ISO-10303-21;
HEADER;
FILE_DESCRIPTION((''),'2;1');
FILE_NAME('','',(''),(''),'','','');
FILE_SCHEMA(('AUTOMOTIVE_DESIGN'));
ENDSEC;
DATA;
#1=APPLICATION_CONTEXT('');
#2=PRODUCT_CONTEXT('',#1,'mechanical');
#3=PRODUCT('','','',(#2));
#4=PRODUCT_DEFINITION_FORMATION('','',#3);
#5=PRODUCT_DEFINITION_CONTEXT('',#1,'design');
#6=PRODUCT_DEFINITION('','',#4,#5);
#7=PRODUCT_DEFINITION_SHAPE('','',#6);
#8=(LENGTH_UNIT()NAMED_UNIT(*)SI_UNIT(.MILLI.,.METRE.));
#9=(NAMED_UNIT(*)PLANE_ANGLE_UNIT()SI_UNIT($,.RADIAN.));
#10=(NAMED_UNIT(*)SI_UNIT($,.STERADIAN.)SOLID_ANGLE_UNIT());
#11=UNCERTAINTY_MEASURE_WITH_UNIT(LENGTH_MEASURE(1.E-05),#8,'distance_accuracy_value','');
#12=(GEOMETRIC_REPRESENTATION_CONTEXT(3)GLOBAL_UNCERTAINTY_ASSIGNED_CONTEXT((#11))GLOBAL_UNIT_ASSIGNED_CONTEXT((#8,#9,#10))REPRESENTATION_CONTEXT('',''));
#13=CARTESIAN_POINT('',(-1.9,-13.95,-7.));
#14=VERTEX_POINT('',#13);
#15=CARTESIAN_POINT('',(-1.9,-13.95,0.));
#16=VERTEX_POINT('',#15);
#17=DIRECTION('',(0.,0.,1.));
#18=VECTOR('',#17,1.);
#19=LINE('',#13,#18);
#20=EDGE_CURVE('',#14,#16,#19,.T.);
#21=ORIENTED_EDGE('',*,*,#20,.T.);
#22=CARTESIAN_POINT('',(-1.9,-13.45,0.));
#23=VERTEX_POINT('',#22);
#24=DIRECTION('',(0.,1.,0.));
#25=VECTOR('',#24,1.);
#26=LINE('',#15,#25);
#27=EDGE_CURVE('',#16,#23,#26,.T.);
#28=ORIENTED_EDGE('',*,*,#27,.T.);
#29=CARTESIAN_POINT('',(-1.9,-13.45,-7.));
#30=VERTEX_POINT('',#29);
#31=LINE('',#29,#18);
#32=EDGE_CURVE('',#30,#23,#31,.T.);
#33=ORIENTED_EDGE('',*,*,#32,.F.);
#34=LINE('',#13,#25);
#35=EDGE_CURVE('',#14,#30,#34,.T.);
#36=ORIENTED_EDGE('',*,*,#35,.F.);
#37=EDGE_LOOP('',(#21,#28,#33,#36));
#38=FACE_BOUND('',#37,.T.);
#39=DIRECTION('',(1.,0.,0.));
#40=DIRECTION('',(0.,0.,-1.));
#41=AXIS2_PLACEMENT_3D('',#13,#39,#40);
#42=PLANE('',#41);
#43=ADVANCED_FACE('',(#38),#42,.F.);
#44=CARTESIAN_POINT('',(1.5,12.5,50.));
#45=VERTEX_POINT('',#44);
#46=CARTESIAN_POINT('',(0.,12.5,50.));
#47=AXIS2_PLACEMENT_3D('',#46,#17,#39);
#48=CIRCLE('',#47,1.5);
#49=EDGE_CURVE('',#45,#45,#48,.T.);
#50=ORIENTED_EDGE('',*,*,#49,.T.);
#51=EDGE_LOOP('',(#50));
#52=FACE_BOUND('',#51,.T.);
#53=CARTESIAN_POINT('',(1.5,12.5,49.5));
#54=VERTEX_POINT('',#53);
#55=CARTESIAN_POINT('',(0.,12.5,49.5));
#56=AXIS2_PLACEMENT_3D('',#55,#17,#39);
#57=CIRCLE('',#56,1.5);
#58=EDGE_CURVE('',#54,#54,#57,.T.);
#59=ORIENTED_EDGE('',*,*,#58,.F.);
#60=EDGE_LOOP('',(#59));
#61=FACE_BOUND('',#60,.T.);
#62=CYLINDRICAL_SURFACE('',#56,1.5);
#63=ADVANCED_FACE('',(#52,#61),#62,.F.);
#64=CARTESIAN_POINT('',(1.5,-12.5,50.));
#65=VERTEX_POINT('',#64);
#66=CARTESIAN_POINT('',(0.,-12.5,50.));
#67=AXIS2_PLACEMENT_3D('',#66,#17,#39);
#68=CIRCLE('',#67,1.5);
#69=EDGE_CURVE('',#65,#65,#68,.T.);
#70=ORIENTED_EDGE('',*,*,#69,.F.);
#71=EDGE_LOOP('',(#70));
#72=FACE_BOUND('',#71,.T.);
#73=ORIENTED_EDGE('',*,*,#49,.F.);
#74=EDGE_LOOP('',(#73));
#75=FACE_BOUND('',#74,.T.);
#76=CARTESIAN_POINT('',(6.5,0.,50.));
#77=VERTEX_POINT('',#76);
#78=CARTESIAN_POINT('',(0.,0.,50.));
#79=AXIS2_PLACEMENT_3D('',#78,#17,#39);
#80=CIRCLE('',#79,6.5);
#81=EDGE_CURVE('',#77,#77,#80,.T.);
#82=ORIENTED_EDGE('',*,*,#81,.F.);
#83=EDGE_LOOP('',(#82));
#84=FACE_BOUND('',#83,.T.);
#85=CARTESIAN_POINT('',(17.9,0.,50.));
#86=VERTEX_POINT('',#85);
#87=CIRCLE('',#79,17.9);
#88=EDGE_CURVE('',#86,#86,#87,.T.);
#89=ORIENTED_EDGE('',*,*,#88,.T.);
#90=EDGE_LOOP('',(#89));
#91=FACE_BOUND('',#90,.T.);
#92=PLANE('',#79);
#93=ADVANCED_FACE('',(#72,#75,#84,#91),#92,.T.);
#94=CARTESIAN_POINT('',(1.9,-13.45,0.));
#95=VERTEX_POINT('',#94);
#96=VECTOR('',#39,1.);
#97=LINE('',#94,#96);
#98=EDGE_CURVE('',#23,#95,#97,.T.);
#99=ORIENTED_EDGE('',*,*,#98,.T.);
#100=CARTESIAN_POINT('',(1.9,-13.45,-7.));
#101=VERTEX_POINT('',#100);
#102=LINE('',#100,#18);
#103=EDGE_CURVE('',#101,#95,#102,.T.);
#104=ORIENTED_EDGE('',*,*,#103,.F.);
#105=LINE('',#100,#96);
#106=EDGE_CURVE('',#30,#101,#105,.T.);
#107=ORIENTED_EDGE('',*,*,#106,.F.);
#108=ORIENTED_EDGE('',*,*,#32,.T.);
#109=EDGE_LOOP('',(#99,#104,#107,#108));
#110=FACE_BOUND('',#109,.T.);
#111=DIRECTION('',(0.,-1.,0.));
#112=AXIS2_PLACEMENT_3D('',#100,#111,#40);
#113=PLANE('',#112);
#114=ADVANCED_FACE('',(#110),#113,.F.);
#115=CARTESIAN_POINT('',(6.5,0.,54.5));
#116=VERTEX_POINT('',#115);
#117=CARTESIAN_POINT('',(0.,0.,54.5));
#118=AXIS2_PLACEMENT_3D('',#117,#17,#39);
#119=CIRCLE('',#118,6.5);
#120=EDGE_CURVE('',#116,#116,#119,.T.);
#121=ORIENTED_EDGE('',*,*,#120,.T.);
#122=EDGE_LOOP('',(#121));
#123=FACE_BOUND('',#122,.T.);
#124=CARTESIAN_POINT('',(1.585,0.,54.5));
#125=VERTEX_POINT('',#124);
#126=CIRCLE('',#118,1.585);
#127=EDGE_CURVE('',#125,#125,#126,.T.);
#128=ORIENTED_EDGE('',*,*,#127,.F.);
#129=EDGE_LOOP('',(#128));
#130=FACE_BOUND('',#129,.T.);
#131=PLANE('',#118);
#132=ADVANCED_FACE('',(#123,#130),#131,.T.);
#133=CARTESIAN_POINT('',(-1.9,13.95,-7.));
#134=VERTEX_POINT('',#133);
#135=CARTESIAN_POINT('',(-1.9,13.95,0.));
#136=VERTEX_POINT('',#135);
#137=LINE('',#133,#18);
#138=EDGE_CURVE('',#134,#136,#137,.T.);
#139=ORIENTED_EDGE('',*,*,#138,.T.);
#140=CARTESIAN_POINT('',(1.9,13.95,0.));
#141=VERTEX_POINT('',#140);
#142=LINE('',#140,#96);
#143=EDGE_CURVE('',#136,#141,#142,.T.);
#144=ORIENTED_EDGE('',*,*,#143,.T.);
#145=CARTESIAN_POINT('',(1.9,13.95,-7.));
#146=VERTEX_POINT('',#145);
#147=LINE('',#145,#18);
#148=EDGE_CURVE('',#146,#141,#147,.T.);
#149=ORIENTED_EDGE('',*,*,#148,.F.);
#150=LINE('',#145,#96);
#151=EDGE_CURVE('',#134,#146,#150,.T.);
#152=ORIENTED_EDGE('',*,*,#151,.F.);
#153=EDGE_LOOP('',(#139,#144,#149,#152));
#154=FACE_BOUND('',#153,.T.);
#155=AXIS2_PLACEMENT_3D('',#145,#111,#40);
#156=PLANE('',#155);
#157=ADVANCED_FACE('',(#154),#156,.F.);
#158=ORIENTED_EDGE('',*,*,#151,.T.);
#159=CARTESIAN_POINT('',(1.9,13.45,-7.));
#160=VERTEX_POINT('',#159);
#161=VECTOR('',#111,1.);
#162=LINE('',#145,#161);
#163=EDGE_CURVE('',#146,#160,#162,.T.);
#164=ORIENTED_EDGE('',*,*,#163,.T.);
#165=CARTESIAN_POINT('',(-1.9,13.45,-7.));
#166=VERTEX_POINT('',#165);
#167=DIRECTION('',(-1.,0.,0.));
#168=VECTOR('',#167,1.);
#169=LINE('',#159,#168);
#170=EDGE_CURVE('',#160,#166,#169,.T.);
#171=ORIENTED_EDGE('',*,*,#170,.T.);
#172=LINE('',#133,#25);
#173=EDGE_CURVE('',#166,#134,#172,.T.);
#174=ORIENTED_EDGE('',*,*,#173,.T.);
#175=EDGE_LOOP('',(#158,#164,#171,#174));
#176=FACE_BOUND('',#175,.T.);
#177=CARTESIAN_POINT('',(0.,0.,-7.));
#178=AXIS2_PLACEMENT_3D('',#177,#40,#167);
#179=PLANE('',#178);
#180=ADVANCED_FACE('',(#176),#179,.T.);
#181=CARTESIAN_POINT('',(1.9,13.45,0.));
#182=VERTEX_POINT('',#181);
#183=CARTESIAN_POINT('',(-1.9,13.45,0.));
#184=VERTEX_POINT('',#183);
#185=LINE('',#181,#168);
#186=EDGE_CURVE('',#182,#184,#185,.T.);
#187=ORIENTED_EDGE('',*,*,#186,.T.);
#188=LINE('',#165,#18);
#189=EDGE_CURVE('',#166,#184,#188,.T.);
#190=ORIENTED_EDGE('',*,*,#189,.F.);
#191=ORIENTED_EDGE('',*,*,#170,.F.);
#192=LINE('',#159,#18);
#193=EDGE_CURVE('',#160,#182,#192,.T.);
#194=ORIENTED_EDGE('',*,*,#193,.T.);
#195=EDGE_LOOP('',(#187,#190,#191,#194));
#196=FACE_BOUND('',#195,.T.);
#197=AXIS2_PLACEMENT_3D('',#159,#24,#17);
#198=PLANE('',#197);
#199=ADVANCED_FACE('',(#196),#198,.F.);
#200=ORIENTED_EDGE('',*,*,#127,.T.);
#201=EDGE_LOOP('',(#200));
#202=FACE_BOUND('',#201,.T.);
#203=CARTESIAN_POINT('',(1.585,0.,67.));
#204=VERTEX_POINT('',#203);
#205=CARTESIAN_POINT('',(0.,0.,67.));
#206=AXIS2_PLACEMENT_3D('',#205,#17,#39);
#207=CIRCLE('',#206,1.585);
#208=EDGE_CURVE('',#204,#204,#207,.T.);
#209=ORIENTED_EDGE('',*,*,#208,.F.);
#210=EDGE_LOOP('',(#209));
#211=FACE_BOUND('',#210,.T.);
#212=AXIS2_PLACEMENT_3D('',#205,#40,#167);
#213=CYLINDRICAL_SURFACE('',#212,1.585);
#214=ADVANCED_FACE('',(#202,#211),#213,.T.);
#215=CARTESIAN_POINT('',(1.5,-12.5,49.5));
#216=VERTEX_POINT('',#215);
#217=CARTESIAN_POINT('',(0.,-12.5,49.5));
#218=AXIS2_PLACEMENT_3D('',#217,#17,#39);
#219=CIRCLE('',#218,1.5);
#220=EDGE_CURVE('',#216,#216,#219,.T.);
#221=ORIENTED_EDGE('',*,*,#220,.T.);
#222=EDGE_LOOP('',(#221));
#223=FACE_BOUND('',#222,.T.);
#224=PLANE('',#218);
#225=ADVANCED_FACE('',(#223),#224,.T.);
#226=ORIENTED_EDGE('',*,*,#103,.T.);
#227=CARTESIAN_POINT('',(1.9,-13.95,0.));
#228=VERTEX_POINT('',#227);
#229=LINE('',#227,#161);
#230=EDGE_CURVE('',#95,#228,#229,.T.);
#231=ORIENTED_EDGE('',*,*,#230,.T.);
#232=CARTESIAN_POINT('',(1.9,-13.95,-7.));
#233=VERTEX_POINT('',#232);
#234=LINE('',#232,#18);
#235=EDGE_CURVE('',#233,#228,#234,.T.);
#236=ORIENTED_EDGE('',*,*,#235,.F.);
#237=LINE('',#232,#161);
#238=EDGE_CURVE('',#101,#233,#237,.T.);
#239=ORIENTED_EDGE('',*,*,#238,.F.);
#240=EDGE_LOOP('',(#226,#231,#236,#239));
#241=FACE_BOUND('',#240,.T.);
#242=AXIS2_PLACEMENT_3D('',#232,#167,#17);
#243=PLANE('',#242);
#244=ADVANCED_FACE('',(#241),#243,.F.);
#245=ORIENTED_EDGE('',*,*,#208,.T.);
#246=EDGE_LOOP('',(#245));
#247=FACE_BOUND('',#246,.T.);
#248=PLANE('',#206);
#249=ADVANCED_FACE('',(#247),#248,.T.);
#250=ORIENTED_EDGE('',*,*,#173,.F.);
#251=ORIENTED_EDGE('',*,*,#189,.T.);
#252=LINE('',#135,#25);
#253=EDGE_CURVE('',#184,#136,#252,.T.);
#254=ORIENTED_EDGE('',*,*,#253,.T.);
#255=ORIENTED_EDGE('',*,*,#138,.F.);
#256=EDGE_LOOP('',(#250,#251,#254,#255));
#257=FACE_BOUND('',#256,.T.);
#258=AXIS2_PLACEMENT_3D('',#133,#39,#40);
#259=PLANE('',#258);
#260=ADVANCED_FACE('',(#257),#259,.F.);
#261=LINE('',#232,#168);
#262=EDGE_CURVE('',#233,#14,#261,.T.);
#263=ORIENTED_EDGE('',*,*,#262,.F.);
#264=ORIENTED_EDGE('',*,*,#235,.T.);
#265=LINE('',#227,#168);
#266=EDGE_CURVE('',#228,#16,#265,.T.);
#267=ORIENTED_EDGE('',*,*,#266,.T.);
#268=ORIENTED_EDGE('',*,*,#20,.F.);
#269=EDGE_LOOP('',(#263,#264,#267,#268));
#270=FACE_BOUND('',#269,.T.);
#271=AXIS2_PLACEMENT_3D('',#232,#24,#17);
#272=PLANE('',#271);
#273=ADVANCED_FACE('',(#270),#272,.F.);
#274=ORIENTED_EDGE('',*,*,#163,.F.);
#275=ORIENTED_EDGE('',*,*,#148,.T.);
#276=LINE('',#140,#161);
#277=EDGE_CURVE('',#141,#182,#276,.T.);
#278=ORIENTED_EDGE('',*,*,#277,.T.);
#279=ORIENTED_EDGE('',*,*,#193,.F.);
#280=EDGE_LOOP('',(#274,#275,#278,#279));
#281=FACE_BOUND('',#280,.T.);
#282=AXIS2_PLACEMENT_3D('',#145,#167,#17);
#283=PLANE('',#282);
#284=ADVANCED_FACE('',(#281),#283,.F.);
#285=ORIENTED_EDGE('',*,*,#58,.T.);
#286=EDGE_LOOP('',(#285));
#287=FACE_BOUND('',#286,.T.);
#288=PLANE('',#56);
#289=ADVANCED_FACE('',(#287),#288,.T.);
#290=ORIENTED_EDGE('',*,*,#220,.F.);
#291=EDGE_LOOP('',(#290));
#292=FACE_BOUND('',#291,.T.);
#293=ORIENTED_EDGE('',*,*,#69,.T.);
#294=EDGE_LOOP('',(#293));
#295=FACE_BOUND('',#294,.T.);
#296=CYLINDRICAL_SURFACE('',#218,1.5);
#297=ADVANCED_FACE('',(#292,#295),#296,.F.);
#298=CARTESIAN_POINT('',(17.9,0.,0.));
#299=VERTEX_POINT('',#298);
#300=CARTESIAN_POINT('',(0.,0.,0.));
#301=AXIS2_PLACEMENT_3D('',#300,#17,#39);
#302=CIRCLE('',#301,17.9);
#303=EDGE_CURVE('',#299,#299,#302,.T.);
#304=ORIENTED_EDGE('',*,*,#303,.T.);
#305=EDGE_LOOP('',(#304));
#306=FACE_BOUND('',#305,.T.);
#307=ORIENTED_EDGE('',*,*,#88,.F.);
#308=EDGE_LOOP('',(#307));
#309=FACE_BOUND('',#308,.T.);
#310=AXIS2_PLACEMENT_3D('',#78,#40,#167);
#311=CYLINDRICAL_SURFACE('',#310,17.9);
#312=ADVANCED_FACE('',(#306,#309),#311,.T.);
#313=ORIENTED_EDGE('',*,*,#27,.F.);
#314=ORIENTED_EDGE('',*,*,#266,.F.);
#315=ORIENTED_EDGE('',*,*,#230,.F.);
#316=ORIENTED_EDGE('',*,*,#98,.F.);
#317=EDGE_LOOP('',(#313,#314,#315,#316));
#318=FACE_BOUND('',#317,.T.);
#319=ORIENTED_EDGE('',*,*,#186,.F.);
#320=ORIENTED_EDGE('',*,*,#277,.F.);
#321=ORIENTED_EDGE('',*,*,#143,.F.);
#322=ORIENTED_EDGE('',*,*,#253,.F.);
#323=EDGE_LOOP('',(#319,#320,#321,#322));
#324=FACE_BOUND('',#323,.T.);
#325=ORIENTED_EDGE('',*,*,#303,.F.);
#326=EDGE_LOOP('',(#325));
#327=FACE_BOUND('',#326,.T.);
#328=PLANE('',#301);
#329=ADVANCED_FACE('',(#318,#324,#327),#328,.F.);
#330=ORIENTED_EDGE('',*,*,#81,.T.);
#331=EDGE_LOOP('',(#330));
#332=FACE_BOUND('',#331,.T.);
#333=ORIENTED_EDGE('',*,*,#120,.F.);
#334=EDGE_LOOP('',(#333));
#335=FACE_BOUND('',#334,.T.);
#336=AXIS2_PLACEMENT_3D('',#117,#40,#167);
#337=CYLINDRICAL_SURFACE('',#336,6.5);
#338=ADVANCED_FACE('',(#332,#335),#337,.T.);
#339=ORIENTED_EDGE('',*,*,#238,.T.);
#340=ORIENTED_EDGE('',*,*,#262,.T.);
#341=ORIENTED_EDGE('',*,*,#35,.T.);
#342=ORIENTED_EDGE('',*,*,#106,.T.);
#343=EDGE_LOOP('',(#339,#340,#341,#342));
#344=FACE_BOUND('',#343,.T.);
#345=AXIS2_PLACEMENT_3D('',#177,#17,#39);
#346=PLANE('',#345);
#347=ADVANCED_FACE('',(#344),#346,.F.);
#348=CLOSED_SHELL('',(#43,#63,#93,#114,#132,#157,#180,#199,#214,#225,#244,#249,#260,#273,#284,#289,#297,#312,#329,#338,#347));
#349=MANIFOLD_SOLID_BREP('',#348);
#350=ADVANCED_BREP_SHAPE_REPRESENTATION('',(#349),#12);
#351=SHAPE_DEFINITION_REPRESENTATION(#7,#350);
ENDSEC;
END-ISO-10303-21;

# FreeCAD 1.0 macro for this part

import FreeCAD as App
import Part
import Sketcher
from FreeCAD import Vector
Q = App.Units.Quantity

doc = App.newDocument("Part")
body = doc.addObject("PartDesign::Body", "Body")

sketch1 = body.newObject("Sketcher::SketchObject", "Sketch")
sketch1.AttachmentSupport = (doc.getObject("XY_Plane"), [""])
sketch1.MapMode = "FlatFace"
sketch1.addGeometry(Part.Circle(Vector(0, 0, 0), Vector(0, 0, 1), 18), False)
sketch1.addConstraint([
    Sketcher.Constraint("Coincident", 0, 3, -1, 1),
    Sketcher.Constraint("Diameter", 0, Q("35.8 mm")),
])
pad1 = body.newObject("PartDesign::Pad", "Pad")
pad1.Profile = sketch1
pad1.Length = 50

sketch2 = body.newObject("Sketcher::SketchObject", "Sketch001")
sketch2.AttachmentSupport = (doc.getObject("XY_Plane"), [""])
sketch2.MapMode = "FlatFace"
sketch2.AttachmentOffset = App.Placement(Vector(0, 0, 50), App.Rotation())
sketch2.addGeometry(Part.Circle(Vector(0, 0, 0), Vector(0, 0, 1), 6), False)
sketch2.addConstraint([
    Sketcher.Constraint("Coincident", 0, 3, -1, 1),
    Sketcher.Constraint("Diameter", 0, Q("13 mm")),
])
pad2 = body.newObject("PartDesign::Pad", "Pad001")
pad2.Profile = sketch2
pad2.Length = 4.5

sketch3 = body.newObject("Sketcher::SketchObject", "Sketch002")
sketch3.AttachmentSupport = (doc.getObject("XY_Plane"), [""])
sketch3.MapMode = "FlatFace"
sketch3.AttachmentOffset = App.Placement(Vector(0, 0, 54.5), App.Rotation())
sketch3.addGeometry(Part.Circle(Vector(0, 0, 0), Vector(0, 0, 1), 1.6), False)
sketch3.addConstraint([
    Sketcher.Constraint("Coincident", 0, 3, -1, 1),
    Sketcher.Constraint("Diameter", 0, Q("3.17 mm")),
])
pad3 = body.newObject("PartDesign::Pad", "Pad002")
pad3.Profile = sketch3
pad3.Length = 12.5

sketch4 = body.newObject("Sketcher::SketchObject", "Sketch003")
sketch4.AttachmentSupport = (doc.getObject("XY_Plane"), [""])
sketch4.MapMode = "FlatFace"
sketch4.AttachmentOffset = App.Placement(Vector(0, 0, 50), App.Rotation())
sketch4.addGeometry([
    Part.Circle(Vector(0, 12.5, 0), Vector(0, 0, 1), 1.5),
    Part.Circle(Vector(0, -12.5, 0), Vector(0, 0, 1), 1.5),
], False)
sketch4.addConstraint([
    Sketcher.Constraint("Equal", 0, 1),
    Sketcher.Constraint("Symmetric", 0, 3, 1, 3, -1, 1),
    Sketcher.Constraint("PointOnObject", 0, 3, -2),
    Sketcher.Constraint("Diameter", 0, Q("3 mm")),
    Sketcher.Constraint("DistanceY", 1, 3, 0, 3, Q("25 mm")),
])
pocket1 = body.newObject("PartDesign::Pocket", "Pocket")
pocket1.Profile = sketch4
pocket1.Length = 0.5

sketch5 = body.newObject("Sketcher::SketchObject", "Sketch004")
sketch5.AttachmentSupport = (doc.getObject("XY_Plane"), [""])
sketch5.MapMode = "FlatFace"
sketch5.addGeometry([
    Part.LineSegment(Vector(1.9, 13.9, 0), Vector(1.9, 13.4, 0)),
    Part.LineSegment(Vector(1.9, 13.4, 0), Vector(-1.9, 13.4, 0)),
    Part.LineSegment(Vector(-1.9, 13.4, 0), Vector(-1.9, 13.9, 0)),
    Part.LineSegment(Vector(-1.9, 13.9, 0), Vector(1.9, 13.9, 0)),
    Part.LineSegment(Vector(1.9, -13.4, 0), Vector(1.9, -13.9, 0)),
    Part.LineSegment(Vector(1.9, -13.9, 0), Vector(-1.9, -13.9, 0)),
    Part.LineSegment(Vector(-1.9, -13.9, 0), Vector(-1.9, -13.4, 0)),
    Part.LineSegment(Vector(-1.9, -13.4, 0), Vector(1.9, -13.4, 0)),
], False)
sketch5.addConstraint([
    Sketcher.Constraint("Coincident", 0, 2, 1, 1),
    Sketcher.Constraint("Coincident", 1, 2, 2, 1),
    Sketcher.Constraint("Coincident", 2, 2, 3, 1),
    Sketcher.Constraint("Coincident", 3, 2, 0, 1),
    Sketcher.Constraint("Coincident", 4, 2, 5, 1),
    Sketcher.Constraint("Coincident", 5, 2, 6, 1),
    Sketcher.Constraint("Coincident", 6, 2, 7, 1),
    Sketcher.Constraint("Coincident", 7, 2, 4, 1),
    Sketcher.Constraint("Vertical", 0),
    Sketcher.Constraint("Horizontal", 1),
    Sketcher.Constraint("Vertical", 2),
    Sketcher.Constraint("Horizontal", 3),
    Sketcher.Constraint("Vertical", 4),
    Sketcher.Constraint("Horizontal", 5),
    Sketcher.Constraint("Vertical", 6),
    Sketcher.Constraint("Horizontal", 7),
    Sketcher.Constraint("Symmetric", 2, 2, 4, 2, -1, 1),
    Sketcher.Constraint("Symmetric", 0, 2, 6, 2, -1, 1),
    Sketcher.Constraint("Vertical", 3, 2, 4, 2),
    Sketcher.Constraint("DistanceX", 1, 2, 1, 1, Q("3.8 mm")),
    Sketcher.Constraint("DistanceY", 0, 2, 0, 1, Q("0.5 mm")),
    Sketcher.Constraint("DistanceY", 4, 2, 0, 2, Q("27.4 mm")),
])
pad4 = body.newObject("PartDesign::Pad", "Pad003")
pad4.Profile = sketch5
pad4.Length = 7
pad4.Reversed = True

doc.recompute()
